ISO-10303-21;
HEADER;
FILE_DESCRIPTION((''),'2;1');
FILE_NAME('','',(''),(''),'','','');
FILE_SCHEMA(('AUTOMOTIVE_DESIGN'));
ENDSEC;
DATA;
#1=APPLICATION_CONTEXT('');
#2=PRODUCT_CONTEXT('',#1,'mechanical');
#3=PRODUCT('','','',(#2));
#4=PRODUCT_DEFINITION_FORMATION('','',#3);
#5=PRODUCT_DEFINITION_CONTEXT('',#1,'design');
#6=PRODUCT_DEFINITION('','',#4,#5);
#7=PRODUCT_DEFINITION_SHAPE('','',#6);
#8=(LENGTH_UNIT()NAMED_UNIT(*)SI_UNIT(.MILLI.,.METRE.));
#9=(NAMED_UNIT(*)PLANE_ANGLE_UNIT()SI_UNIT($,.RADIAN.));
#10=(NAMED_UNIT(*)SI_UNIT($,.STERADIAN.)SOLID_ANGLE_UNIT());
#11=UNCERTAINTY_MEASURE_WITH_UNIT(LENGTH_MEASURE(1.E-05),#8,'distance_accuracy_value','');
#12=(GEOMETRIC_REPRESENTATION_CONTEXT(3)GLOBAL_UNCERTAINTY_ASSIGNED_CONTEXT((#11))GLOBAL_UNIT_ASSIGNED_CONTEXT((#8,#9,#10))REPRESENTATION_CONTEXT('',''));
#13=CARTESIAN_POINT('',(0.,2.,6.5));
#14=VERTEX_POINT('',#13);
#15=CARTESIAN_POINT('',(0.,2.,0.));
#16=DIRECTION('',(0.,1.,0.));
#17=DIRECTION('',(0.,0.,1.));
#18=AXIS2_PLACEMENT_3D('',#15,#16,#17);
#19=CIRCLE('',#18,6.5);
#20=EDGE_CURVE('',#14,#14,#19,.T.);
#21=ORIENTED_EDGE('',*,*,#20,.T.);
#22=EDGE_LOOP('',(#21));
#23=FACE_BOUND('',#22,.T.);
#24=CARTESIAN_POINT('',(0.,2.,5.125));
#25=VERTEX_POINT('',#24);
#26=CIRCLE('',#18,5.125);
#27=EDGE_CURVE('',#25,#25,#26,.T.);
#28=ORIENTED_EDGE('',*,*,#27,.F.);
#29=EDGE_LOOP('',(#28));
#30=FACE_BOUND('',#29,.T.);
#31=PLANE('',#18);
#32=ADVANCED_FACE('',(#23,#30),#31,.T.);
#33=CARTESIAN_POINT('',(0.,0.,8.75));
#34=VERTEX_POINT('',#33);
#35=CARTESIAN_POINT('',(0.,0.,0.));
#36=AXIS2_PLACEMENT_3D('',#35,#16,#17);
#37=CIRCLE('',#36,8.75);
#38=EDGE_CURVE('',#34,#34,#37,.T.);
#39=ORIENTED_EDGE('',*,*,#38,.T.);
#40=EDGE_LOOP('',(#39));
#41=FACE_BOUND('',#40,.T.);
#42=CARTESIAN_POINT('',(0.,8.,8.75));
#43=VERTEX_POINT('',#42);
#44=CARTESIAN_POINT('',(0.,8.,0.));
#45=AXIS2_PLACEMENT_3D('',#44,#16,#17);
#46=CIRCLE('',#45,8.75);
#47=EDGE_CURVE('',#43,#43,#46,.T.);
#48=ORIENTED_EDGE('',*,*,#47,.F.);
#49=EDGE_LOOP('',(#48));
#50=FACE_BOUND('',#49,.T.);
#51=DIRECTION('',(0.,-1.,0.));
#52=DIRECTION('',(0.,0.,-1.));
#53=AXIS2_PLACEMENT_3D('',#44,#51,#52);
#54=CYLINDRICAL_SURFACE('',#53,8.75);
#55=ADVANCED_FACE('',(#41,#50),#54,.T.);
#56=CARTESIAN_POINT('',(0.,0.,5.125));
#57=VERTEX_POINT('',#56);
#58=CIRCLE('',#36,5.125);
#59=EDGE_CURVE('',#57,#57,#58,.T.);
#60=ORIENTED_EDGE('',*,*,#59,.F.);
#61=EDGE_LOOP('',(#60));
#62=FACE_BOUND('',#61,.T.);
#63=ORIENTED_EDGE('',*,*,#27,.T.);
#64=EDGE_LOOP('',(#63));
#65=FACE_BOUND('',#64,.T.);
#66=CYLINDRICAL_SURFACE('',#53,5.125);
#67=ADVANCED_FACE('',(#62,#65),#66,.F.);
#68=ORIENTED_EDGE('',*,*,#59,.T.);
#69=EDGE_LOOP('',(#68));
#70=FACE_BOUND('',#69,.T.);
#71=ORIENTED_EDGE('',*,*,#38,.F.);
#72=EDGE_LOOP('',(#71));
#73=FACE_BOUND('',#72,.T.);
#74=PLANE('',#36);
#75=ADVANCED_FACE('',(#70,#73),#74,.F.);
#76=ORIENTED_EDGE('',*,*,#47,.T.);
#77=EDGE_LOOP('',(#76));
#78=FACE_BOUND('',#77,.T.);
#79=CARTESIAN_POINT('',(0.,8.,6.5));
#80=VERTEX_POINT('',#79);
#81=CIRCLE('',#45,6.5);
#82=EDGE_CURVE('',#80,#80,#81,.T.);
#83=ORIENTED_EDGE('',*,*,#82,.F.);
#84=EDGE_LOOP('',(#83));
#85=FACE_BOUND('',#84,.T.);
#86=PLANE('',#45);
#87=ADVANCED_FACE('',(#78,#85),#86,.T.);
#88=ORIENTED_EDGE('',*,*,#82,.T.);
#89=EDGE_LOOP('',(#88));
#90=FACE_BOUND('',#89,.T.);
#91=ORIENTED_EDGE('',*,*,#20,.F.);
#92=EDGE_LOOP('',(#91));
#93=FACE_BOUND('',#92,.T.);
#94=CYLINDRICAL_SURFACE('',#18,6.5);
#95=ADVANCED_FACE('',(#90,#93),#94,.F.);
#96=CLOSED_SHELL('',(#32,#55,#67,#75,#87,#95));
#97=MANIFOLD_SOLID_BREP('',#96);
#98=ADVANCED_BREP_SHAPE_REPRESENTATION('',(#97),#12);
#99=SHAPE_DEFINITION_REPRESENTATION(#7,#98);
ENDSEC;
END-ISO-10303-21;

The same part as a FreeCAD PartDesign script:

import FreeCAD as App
import Part
import Sketcher

V = App.Vector
Q = App.Units.Quantity

doc = App.newDocument("Part")
body = doc.addObject("PartDesign::Body", "Body")

sketch1 = doc.addObject("Sketcher::SketchObject", "Sketch")
body.addObject(sketch1)
sketch1.AttachmentSupport = (doc.XZ_Plane, [""])
sketch1.MapMode = "FlatFace"
sketch1.addGeometry(Part.Circle(V(0, 0, 0), V(0, 0, 1), 9), False)
sketch1.addGeometry(Part.Circle(V(0, 0, 0), V(0, 0, 1), 5), False)
sketch1.addConstraint(Sketcher.Constraint("Coincident", 0, 3, -1, 1))
sketch1.addConstraint(Sketcher.Constraint("Coincident", 1, 3, -1, 1))
sketch1.addConstraint(Sketcher.Constraint("Diameter", 0, Q("17.5 mm")))
sketch1.addConstraint(Sketcher.Constraint("Diameter", 1, Q("10.25 mm")))
pad1 = doc.addObject("PartDesign::Pad", "Pad")
body.addObject(pad1)
pad1.Profile = sketch1
pad1.Length = 8
pad1.Reversed = True

sketch2 = doc.addObject("Sketcher::SketchObject", "Sketch001")
body.addObject(sketch2)
sketch2.AttachmentSupport = (doc.XZ_Plane, [""])
sketch2.MapMode = "FlatFace"
sketch2.AttachmentOffset = App.Placement(V(0, 0, -8), App.Rotation())
sketch2.addGeometry(Part.Circle(V(0, 0, 0), V(0, 0, 1), 6), False)
sketch2.addConstraint(Sketcher.Constraint("Coincident", 0, 3, -1, 1))
sketch2.addConstraint(Sketcher.Constraint("Diameter", 0, Q("13 mm")))
pocket1 = doc.addObject("PartDesign::Pocket", "Pocket")
body.addObject(pocket1)
pocket1.Profile = sketch2
pocket1.Length = 6
pocket1.Reversed = True

doc.recompute()
